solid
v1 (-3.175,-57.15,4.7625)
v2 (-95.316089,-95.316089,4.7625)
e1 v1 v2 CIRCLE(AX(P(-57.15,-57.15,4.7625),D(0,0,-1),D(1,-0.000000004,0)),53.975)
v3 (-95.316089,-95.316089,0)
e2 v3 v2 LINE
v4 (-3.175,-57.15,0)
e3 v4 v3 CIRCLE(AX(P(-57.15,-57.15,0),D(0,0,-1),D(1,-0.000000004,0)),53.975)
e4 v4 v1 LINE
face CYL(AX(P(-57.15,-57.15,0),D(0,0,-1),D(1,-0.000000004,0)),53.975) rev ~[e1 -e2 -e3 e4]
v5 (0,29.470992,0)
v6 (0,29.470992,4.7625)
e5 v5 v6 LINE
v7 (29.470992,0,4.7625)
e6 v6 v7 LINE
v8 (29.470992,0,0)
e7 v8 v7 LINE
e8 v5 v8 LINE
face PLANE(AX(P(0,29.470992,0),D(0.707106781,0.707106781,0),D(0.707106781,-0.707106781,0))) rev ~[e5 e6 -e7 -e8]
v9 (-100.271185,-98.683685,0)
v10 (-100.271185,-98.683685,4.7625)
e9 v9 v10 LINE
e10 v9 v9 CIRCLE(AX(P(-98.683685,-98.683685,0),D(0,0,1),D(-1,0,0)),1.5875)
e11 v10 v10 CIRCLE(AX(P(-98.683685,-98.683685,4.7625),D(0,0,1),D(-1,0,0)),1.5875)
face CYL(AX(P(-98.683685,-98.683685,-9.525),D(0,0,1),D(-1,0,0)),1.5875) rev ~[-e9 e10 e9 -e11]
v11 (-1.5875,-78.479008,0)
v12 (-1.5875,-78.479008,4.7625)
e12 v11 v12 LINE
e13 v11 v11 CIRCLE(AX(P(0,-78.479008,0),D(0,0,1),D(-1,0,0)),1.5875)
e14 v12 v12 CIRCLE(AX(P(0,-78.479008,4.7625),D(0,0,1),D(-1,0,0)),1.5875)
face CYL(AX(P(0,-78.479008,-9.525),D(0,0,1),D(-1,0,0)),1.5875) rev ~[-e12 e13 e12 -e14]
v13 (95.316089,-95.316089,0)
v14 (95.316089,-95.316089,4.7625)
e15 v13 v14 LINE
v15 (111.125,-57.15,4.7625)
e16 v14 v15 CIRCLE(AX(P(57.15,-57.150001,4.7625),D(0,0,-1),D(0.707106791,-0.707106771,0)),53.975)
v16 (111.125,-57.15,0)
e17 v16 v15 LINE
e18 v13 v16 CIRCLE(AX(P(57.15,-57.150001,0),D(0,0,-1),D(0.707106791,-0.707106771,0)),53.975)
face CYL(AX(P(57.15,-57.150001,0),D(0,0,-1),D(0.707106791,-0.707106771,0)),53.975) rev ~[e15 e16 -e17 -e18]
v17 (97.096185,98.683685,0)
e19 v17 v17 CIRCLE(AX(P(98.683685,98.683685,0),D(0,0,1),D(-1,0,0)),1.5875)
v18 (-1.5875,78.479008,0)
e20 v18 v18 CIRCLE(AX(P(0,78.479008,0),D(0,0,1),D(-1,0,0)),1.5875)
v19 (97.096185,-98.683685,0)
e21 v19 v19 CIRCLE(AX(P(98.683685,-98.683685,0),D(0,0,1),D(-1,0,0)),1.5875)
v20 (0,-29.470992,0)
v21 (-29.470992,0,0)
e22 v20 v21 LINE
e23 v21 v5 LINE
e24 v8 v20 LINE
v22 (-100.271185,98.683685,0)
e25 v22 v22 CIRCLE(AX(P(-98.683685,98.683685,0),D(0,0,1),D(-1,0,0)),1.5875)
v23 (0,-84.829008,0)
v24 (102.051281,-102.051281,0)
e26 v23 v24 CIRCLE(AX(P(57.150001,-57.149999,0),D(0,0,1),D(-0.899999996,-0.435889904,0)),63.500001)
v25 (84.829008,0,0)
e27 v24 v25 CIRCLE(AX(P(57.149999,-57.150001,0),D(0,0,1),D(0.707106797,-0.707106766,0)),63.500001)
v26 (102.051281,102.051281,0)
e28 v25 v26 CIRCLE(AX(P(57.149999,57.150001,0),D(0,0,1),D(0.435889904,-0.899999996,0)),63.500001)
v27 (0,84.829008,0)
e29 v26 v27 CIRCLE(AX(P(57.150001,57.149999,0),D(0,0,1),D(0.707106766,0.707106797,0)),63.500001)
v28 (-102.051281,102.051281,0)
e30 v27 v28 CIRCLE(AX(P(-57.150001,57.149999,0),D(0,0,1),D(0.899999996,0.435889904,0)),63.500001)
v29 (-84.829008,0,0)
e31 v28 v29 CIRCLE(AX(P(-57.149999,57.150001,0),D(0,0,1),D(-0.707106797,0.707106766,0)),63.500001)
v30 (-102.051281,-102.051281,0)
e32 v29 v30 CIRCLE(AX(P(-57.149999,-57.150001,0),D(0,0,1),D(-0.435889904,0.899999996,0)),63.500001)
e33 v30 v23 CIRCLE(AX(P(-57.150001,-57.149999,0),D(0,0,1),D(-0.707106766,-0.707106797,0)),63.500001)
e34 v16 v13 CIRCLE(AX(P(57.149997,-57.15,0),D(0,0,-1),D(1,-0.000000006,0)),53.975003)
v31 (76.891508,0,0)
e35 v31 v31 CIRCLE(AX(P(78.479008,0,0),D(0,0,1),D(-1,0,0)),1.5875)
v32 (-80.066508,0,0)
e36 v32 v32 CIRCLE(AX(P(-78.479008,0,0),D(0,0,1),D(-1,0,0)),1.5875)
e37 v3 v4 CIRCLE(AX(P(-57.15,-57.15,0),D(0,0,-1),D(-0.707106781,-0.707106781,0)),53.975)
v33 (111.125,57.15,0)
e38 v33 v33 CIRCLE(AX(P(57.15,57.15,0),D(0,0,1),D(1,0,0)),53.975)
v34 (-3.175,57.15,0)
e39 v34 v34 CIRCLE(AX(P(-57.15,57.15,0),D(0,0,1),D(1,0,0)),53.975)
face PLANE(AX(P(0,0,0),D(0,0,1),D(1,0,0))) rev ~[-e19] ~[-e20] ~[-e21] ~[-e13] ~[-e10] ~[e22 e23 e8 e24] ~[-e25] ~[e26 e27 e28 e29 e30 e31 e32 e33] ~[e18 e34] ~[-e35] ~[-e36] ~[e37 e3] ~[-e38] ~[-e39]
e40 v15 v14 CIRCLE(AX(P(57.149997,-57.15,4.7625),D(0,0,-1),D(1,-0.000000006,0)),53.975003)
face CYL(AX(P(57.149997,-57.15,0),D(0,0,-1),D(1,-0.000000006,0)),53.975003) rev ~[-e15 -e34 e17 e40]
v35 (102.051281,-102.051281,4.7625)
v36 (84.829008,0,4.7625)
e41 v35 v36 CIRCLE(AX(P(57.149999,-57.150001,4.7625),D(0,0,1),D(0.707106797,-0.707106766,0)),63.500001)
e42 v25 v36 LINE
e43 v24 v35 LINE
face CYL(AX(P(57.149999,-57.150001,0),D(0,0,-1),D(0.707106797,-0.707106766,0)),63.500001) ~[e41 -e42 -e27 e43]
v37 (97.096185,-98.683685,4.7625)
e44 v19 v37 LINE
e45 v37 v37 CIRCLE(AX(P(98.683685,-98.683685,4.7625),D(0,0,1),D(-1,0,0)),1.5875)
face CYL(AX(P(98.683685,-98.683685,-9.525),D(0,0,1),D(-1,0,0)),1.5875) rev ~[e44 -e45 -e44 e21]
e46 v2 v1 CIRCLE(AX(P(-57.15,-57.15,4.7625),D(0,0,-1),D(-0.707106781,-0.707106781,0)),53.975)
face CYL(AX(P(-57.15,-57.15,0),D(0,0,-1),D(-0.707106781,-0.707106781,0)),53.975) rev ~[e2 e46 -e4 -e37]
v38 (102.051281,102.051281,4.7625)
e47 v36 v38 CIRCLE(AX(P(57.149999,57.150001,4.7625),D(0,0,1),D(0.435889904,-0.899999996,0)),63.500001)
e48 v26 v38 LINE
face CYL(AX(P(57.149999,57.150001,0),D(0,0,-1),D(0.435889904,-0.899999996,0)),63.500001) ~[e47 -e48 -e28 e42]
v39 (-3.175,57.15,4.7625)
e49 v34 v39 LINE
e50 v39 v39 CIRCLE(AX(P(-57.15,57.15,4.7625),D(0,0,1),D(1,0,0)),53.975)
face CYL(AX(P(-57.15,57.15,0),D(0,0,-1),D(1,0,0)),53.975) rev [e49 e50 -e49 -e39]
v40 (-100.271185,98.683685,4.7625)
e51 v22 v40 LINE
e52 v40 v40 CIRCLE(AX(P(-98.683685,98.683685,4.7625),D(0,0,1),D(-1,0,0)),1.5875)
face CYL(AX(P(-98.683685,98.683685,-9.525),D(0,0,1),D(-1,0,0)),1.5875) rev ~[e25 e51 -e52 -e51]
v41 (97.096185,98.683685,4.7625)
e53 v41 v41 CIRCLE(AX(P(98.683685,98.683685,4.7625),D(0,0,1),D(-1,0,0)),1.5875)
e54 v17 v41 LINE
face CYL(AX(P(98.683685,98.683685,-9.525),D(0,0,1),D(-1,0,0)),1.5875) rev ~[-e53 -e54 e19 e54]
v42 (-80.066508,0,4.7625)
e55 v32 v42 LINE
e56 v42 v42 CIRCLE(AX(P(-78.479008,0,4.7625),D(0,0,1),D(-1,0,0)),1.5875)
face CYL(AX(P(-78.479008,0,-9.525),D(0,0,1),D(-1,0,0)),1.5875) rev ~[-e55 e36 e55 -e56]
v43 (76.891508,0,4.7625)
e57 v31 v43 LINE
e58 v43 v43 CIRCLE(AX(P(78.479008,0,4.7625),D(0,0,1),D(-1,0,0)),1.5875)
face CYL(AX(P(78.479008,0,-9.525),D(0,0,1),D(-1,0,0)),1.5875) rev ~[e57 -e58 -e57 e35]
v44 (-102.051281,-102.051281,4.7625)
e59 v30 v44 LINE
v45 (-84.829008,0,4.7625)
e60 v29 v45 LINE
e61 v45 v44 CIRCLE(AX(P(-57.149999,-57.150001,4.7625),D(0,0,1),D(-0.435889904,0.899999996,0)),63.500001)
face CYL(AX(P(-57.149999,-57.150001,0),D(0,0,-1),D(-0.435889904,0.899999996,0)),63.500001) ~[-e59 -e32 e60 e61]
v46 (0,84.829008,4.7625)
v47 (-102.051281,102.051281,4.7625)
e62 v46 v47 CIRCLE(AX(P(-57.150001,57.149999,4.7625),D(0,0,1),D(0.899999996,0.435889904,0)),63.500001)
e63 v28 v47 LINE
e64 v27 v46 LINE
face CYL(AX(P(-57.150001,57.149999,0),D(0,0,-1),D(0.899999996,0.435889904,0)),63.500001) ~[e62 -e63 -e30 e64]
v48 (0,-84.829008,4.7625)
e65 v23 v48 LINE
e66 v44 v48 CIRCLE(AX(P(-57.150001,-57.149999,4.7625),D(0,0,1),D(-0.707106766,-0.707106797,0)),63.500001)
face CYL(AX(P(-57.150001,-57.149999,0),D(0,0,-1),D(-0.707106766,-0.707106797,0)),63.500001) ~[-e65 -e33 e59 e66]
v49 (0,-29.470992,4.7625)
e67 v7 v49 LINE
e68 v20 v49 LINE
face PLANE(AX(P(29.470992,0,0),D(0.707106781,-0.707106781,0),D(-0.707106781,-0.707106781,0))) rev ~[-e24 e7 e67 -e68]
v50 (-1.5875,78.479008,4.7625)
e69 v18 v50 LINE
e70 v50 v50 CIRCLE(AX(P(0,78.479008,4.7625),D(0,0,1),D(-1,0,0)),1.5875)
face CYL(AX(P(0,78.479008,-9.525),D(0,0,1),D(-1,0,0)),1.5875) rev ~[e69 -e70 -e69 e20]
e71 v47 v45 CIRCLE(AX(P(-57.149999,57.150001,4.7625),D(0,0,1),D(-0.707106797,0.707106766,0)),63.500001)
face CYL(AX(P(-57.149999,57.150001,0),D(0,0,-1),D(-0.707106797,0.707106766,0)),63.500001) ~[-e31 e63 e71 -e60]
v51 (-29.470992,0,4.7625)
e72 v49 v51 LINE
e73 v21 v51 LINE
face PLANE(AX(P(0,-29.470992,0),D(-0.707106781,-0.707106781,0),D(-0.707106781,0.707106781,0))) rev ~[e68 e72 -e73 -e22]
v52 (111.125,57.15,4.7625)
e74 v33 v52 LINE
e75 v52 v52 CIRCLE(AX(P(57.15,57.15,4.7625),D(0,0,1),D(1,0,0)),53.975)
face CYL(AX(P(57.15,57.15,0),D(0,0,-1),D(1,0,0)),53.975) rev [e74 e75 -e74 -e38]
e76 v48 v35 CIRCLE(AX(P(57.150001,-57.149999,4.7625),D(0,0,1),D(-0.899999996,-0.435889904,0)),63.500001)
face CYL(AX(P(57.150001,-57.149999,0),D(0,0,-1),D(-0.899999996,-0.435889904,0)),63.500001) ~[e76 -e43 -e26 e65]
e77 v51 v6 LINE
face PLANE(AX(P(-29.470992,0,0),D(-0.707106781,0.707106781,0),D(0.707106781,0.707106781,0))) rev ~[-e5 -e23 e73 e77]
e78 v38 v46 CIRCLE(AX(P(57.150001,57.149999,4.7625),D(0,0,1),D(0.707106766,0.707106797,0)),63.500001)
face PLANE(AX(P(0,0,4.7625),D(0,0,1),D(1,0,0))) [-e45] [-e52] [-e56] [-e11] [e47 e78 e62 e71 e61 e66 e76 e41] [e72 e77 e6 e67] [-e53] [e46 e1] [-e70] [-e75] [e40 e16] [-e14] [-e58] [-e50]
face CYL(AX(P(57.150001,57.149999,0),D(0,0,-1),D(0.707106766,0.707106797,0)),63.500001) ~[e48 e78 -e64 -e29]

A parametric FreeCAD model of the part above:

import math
import FreeCAD as App
import Part
import Sketcher
from FreeCAD import Vector
Q = App.Units.Quantity


def add_polygon(sketch, points):
    """Adds a closed chain of lines whose ends are joined by coincident constraints."""
    first, n = sketch.GeometryCount, len(points)
    for a, b in zip(points, points[1:] + points[:1]):
        sketch.addGeometry(Part.LineSegment(App.Vector(*a, 0), App.Vector(*b, 0)), False)
    for i in range(n):
        sketch.addConstraint(Sketcher.Constraint("Coincident", first + i, 2, first + (i + 1) % n, 1))

doc = App.newDocument("Part")
body = doc.addObject("PartDesign::Body", "Body")

# Sketch on XY plane
sketch1 = doc.addObject("Sketcher::SketchObject", "Sketch")
body.addObject(sketch1)
sketch1.AttachmentSupport = (doc.XY_Plane, [""])
sketch1.MapMode = "FlatFace"
sketch1.addGeometry(Part.ArcOfCircle(Part.Circle(Vector(57, -57, 0), Vector(0, 0, 1), 64), math.radians(-154), math.radians(-45)), False)  # 0
sketch1.addGeometry(Part.ArcOfCircle(Part.Circle(Vector(57, -57, 0), Vector(0, 0, 1), 64), math.radians(-45), math.radians(64)), False)  # 1
sketch1.addGeometry(Part.ArcOfCircle(Part.Circle(Vector(57, 57, 0), Vector(0, 0, 1), 64), math.radians(-64), math.radians(45)), False)  # 2
sketch1.addGeometry(Part.ArcOfCircle(Part.Circle(Vector(57, 57, 0), Vector(0, 0, 1), 64), math.radians(45), math.radians(154)), False)  # 3
sketch1.addGeometry(Part.ArcOfCircle(Part.Circle(Vector(-57, 57, 0), Vector(0, 0, 1), 64), math.radians(26), math.radians(135)), False)  # 4
sketch1.addGeometry(Part.ArcOfCircle(Part.Circle(Vector(-57, 57, 0), Vector(0, 0, 1), 64), math.radians(135), math.radians(244)), False)  # 5
sketch1.addGeometry(Part.ArcOfCircle(Part.Circle(Vector(-57, -57, 0), Vector(0, 0, 1), 64), math.radians(116), math.radians(225)), False)  # 6
sketch1.addGeometry(Part.ArcOfCircle(Part.Circle(Vector(-57, -57, 0), Vector(0, 0, 1), 64), math.radians(-135), math.radians(-26)), False)  # 7
sketch1.addGeometry(Part.ArcOfCircle(Part.Circle(Vector(-57, -57, 0), Vector(0, 0, 1), 54), math.radians(0), math.radians(225)), False)  # 8
sketch1.addGeometry(Part.ArcOfCircle(Part.Circle(Vector(-57, -57, 0), Vector(0, 0, 1), 54), math.radians(-135), math.radians(0)), False)  # 9
sketch1.addGeometry(Part.ArcOfCircle(Part.Circle(Vector(57, -57, 0), Vector(0, 0, 1), 54), math.radians(-45), math.radians(0)), False)  # 10
sketch1.addGeometry(Part.ArcOfCircle(Part.Circle(Vector(57, -57, 0), Vector(0, 0, 1), 54), math.radians(0), math.radians(315)), False)  # 11
sketch1.addGeometry(Part.Circle(Vector(-57, 57, 0), Vector(0, 0, 1), 54), False)  # 12
add_polygon(sketch1, [(0, -29), (-29, 0), (0, 29), (29, 0)])  # lines 13-16
sketch1.addGeometry(Part.Circle(Vector(57, 57, 0), Vector(0, 0, 1), 54), False)  # 17
sketch1.addConstraint([
    Sketcher.Constraint("Tangent", 0, 2, 1, 1),
    Sketcher.Constraint("Coincident", 1, 2, 2, 1),
    Sketcher.Constraint("Tangent", 2, 2, 3, 1),
    Sketcher.Constraint("Coincident", 3, 2, 4, 1),
    Sketcher.Constraint("Tangent", 4, 2, 5, 1),
    Sketcher.Constraint("Coincident", 5, 2, 6, 1),
    Sketcher.Constraint("Tangent", 6, 2, 7, 1),
    Sketcher.Constraint("Coincident", 7, 2, 0, 1),
    Sketcher.Constraint("Tangent", 8, 1, 9, 2),
    Sketcher.Constraint("Coincident", 9, 1, 8, 2),
    Sketcher.Constraint("Tangent", 10, 1, 11, 2),
    Sketcher.Constraint("Coincident", 11, 1, 10, 2),
    Sketcher.Constraint("Coincident", 8, 3, 6, 3),
    Sketcher.Constraint("Coincident", 10, 3, 0, 3),
    Sketcher.Constraint("Coincident", 12, 3, 4, 3),
    Sketcher.Constraint("Coincident", 17, 3, 2, 3),
    Sketcher.Constraint("Equal", 0, 1),
    Sketcher.Constraint("Equal", 1, 2),
    Sketcher.Constraint("Equal", 2, 3),
    Sketcher.Constraint("Equal", 3, 4),
    Sketcher.Constraint("Equal", 4, 5),
    Sketcher.Constraint("Equal", 5, 6),
    Sketcher.Constraint("Equal", 6, 7),
    Sketcher.Constraint("Equal", 9, 11),
    Sketcher.Constraint("Equal", 11, 12),
    Sketcher.Constraint("Equal", 12, 17),
    Sketcher.Constraint("Symmetric", 0, 3, 4, 3, -1, 1),
    Sketcher.Constraint("Symmetric", 2, 3, 6, 3, -1, 1),
    Sketcher.Constraint("Symmetric", 13, 2, 15, 2, -1, 1),
    Sketcher.Constraint("Symmetric", 14, 2, 16, 2, -1, 1),
    Sketcher.Constraint("Symmetric", 2, 3, 4, 3, -2),
    Sketcher.Constraint("PointOnObject", 13, 2, -1),
    Sketcher.Constraint("PointOnObject", 14, 2, -2),
    Sketcher.Constraint("Perpendicular", 13, 14),
    Sketcher.Constraint("Horizontal", 2, 2, 4, 2),
    Sketcher.Constraint("Horizontal", 0, 2, 6, 2),
    Sketcher.Constraint("Horizontal", 11, 3, 8, 1),
    Sketcher.Constraint("Horizontal", 9, 1, 10, 1),
    Sketcher.Constraint("Horizontal", 8, 1, 11, 1),
    Sketcher.Constraint("Vertical", 0, 2, 2, 2),
    Sketcher.Constraint("Radius", 0, Q("2.5 in")),
    Sketcher.Constraint("Diameter", 12, Q("4.25 in")),
    Sketcher.Constraint("DistanceY", 0, 3, 2, 3, Q("4.5 in")),
    Sketcher.Constraint("DistanceX", 4, 3, 2, 3, Q("4.5 in")),
    Sketcher.Constraint("DistanceX", -1, 1, 0, 2, 102.051281),
    Sketcher.Constraint("DistanceX", 9, 1, -1, 1, 95.316089),
    Sketcher.Constraint("DistanceX", 13, 2, -1, 1, 29.470992),
])
pad1 = doc.addObject("PartDesign::Pad", "Pad")
body.addObject(pad1)
pad1.Profile = sketch1
pad1.Length = Q("0.1875 in")

# Sketch on XY plane
sketch2 = doc.addObject("Sketcher::SketchObject", "Sketch001")
body.addObject(sketch2)
sketch2.AttachmentSupport = (doc.XY_Plane, [""])
sketch2.MapMode = "FlatFace"
sketch2.addGeometry([
    Part.Circle(Vector(-98.7, 98.7, 0), Vector(0, 0, 1), 1.6),  # 0
    Part.Circle(Vector(-78.5, 0, 0), Vector(0, 0, 1), 1.6),  # 1
    Part.Circle(Vector(-98.7, -98.7, 0), Vector(0, 0, 1), 1.6),  # 2
    Part.Circle(Vector(0, -78.5, 0), Vector(0, 0, 1), 1.6),  # 3
    Part.Circle(Vector(98.7, -98.7, 0), Vector(0, 0, 1), 1.6),  # 4
    Part.Circle(Vector(78.5, 0, 0), Vector(0, 0, 1), 1.6),  # 5
    Part.Circle(Vector(98.7, 98.7, 0), Vector(0, 0, 1), 1.6),  # 6
    Part.Circle(Vector(0, 78.5, 0), Vector(0, 0, 1), 1.6),  # 7
], False)
sketch2.addConstraint([
    Sketcher.Constraint("Equal", 0, 1),
    Sketcher.Constraint("Equal", 1, 2),
    Sketcher.Constraint("Equal", 2, 3),
    Sketcher.Constraint("Equal", 3, 4),
    Sketcher.Constraint("Equal", 4, 5),
    Sketcher.Constraint("Equal", 5, 6),
    Sketcher.Constraint("Equal", 6, 7),
    Sketcher.Constraint("Symmetric", 0, 3, 4, 3, -1, 1),
    Sketcher.Constraint("Symmetric", 1, 3, 5, 3, -1, 1),
    Sketcher.Constraint("Symmetric", 2, 3, 6, 3, -1, 1),
    Sketcher.Constraint("Symmetric", 3, 3, 7, 3, -1, 1),
    Sketcher.Constraint("Symmetric", 2, 3, 4, 3, -2),
    Sketcher.Constraint("PointOnObject", 1, 3, -1),
    Sketcher.Constraint("PointOnObject", 3, 3, -2),
    Sketcher.Constraint("Diameter", 0, Q("0.125 in")),
    Sketcher.Constraint("DistanceY", 2, 3, 0, 3, 197.36737),
    Sketcher.Constraint("DistanceX", 2, 3, 4, 3, 197.36737),
    Sketcher.Constraint("DistanceX", 1, 3, -1, 1, 78.479008),
    Sketcher.Constraint("DistanceY", 3, 3, -1, 1, 78.479008),
])
doc.recompute()
hole = doc.addObject("PartDesign::Hole", "Hole")
body.addObject(hole)
hole.Profile = sketch2
hole.ThreadType = "None"
hole.Diameter = Q("0.125 in")
hole.DepthType = "Dimension"
hole.Depth = Q("0.375 in")
hole.DrillPoint = "Flat"
hole.Reversed = True

doc.recompute()
